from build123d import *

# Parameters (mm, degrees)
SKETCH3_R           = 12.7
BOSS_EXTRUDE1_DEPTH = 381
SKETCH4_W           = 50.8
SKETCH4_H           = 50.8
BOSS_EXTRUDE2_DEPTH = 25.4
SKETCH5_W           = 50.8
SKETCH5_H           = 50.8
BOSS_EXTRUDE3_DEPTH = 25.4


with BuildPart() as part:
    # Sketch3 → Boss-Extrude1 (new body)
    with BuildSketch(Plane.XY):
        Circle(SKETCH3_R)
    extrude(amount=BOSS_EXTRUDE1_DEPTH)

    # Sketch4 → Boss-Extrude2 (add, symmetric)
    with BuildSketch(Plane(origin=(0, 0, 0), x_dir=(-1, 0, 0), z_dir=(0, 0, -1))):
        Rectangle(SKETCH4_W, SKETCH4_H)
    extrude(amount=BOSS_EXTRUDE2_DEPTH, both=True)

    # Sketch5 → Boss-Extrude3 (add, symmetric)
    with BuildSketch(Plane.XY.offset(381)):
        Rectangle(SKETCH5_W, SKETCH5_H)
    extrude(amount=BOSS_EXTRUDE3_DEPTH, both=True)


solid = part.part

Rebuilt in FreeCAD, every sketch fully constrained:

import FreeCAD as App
import Part
import Sketcher
from FreeCAD import Vector
Q = App.Units.Quantity

doc = App.newDocument("Part")
body = doc.addObject("PartDesign::Body", "Body")

sketch1 = doc.addObject("Sketcher::SketchObject", "Sketch")
body.addObject(sketch1)
sketch1.AttachmentSupport = (doc.XY_Plane, [""])
sketch1.MapMode = "FlatFace"
sketch1.addGeometry(Part.Circle(Vector(0, 0, 0), Vector(0, 0, 1), 13), False)
sketch1.addConstraint([
    Sketcher.Constraint("Coincident", 0, 3, -1, 1),
    Sketcher.Constraint("Diameter", 0, Q("1 in")),
])
pad1 = doc.addObject("PartDesign::Pad", "Pad")
body.addObject(pad1)
pad1.Profile = sketch1
pad1.Length = Q("15 in")

sketch2 = doc.addObject("Sketcher::SketchObject", "Sketch001")
body.addObject(sketch2)
sketch2.AttachmentSupport = (doc.XY_Plane, [""])
sketch2.MapMode = "FlatFace"
sketch2.addGeometry([
    Part.LineSegment(Vector(25, 25, 0), Vector(25, -25, 0)),
    Part.LineSegment(Vector(25, -25, 0), Vector(-25, -25, 0)),
    Part.LineSegment(Vector(-25, -25, 0), Vector(-25, 25, 0)),
    Part.LineSegment(Vector(-25, 25, 0), Vector(25, 25, 0)),
], False)
sketch2.addConstraint([
    Sketcher.Constraint("Coincident", 0, 2, 1, 1),
    Sketcher.Constraint("Coincident", 1, 2, 2, 1),
    Sketcher.Constraint("Coincident", 2, 2, 3, 1),
    Sketcher.Constraint("Coincident", 3, 2, 0, 1),
    Sketcher.Constraint("Vertical", 0),
    Sketcher.Constraint("Horizontal", 1),
    Sketcher.Constraint("Vertical", 2),
    Sketcher.Constraint("Horizontal", 3),
    Sketcher.Constraint("Symmetric", 0, 2, 2, 2, -1, 1),
    Sketcher.Constraint("Equal", 3, 0),
    Sketcher.Constraint("DistanceX", 1, 2, 1, 1, Q("2 in")),
])
pad2 = doc.addObject("PartDesign::Pad", "Pad001")
body.addObject(pad2)
pad2.Profile = sketch2
pad2.Length = Q("2 in")
pad2.Midplane = True

sketch3 = doc.addObject("Sketcher::SketchObject", "Sketch002")
body.addObject(sketch3)
sketch3.AttachmentSupport = (doc.XY_Plane, [""])
sketch3.MapMode = "FlatFace"
sketch3.AttachmentOffset = App.Placement(Vector(0, 0, 15 * 25.4), App.Rotation())
sketch3.addGeometry([
    Part.LineSegment(Vector(-25, 25, 0), Vector(-25, -25, 0)),
    Part.LineSegment(Vector(-25, -25, 0), Vector(25, -25, 0)),
    Part.LineSegment(Vector(25, -25, 0), Vector(25, 25, 0)),
    Part.LineSegment(Vector(25, 25, 0), Vector(-25, 25, 0)),
], False)
sketch3.addConstraint([
    Sketcher.Constraint("Coincident", 0, 2, 1, 1),
    Sketcher.Constraint("Coincident", 1, 2, 2, 1),
    Sketcher.Constraint("Coincident", 2, 2, 3, 1),
    Sketcher.Constraint("Coincident", 3, 2, 0, 1),
    Sketcher.Constraint("Vertical", 0),
    Sketcher.Constraint("Horizontal", 1),
    Sketcher.Constraint("Vertical", 2),
    Sketcher.Constraint("Horizontal", 3),
    Sketcher.Constraint("Symmetric", 0, 2, 2, 2, -1, 1),
    Sketcher.Constraint("Equal", 3, 0),
    Sketcher.Constraint("DistanceX", 1, 1, 1, 2, Q("2 in")),
])
pad3 = doc.addObject("PartDesign::Pad", "Pad002")
body.addObject(pad3)
pad3.Profile = sketch3
pad3.Length = Q("2 in")
pad3.Midplane = True

doc.recompute()
